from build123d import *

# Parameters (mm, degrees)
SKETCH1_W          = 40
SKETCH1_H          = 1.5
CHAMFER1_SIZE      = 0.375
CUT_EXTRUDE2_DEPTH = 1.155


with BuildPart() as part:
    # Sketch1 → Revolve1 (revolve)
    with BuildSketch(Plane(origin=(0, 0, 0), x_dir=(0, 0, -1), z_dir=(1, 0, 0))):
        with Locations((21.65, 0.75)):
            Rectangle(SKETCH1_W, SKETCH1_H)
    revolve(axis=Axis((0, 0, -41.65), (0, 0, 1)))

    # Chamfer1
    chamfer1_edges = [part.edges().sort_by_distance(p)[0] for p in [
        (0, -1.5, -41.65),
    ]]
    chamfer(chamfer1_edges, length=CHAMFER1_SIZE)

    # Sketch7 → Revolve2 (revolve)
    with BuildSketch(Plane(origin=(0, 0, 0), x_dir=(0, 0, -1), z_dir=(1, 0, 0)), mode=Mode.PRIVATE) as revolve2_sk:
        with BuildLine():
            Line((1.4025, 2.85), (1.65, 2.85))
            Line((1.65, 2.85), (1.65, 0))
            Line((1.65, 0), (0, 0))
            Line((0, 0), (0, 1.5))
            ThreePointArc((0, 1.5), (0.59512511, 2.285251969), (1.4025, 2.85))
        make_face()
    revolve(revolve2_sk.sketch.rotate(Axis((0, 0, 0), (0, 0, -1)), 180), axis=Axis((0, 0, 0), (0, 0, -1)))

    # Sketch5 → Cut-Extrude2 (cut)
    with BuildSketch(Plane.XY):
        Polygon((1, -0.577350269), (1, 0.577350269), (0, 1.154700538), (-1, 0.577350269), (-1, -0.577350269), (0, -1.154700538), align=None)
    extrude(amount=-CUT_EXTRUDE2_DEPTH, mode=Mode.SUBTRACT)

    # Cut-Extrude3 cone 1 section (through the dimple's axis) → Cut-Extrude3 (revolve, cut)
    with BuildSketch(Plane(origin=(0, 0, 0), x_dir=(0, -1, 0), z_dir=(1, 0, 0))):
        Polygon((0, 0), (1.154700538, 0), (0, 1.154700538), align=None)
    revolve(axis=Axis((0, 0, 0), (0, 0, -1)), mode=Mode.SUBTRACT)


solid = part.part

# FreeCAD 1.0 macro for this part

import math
import FreeCAD as App
import Part
import Sketcher
Q = App.Units.Quantity


def edges_at(feature, points):
    """Names of the edges that pass closest to the given points."""
    edges = feature.Shape.Edges
    near = lambda p: min(range(len(edges)), key=lambda i: edges[i].distToShape(Part.Vertex(*p))[0])
    return sorted({f"Edge{near(p) + 1}" for p in points})

doc = App.newDocument("Part")
body = doc.addObject("PartDesign::Body", "Body")

sketch1 = doc.addObject("Sketcher::SketchObject", "Sketch")
body.addObject(sketch1)
sketch1.AttachmentSupport = (doc.YZ_Plane, [""])
sketch1.MapMode = "FlatFace"
sketch1.addGeometry([
    Part.LineSegment(App.Vector(1.5, -1.65, 0), App.Vector(0, -1.65, 0)),
    Part.LineSegment(App.Vector(0, -1.65, 0), App.Vector(0, -41.65, 0)),
    Part.LineSegment(App.Vector(0, -41.65, 0), App.Vector(1.5, -41.65, 0)),
    Part.LineSegment(App.Vector(1.5, -41.65, 0), App.Vector(1.5, -1.65, 0)),
], False)
sketch1.addConstraint([
    Sketcher.Constraint("Coincident", 0, 2, 1, 1),
    Sketcher.Constraint("Coincident", 1, 2, 2, 1),
    Sketcher.Constraint("Coincident", 2, 2, 3, 1),
    Sketcher.Constraint("Coincident", 3, 2, 0, 1),
    Sketcher.Constraint("Horizontal", 0),
    Sketcher.Constraint("Vertical", 1),
    Sketcher.Constraint("Horizontal", 2),
    Sketcher.Constraint("Vertical", 3),
    Sketcher.Constraint("PointOnObject", 0, 2, -2),
    Sketcher.Constraint("DistanceY", 1, 2, 1, 1, Q("40 mm")),
    Sketcher.Constraint("DistanceX", 0, 2, 0, 1, Q("1.5 mm")),
    Sketcher.Constraint("DistanceY", 0, 2, -1, 1, Q("1.65 mm")),
])
revolution = doc.addObject("PartDesign::Revolution", "Revolution")
body.addObject(revolution)
revolution.Profile = sketch1
revolution.ReferenceAxis = (sketch1, ["V_Axis"])
revolution.Angle = 360
doc.recompute()

chamfer = doc.addObject("PartDesign::Chamfer", "Chamfer")
body.addObject(chamfer)
chamfer.Base = (revolution, edges_at(revolution, [(0, -1.5, -41.65)]))
chamfer.Size = 0.375

sketch2 = doc.addObject("Sketcher::SketchObject", "Sketch001")
body.addObject(sketch2)
sketch2.AttachmentSupport = (doc.YZ_Plane, [""])
sketch2.MapMode = "FlatFace"
sketch2.addGeometry([
    Part.LineSegment(App.Vector(2.85, -1.65, 0), App.Vector(2.85, -1.4025, 0)),
    Part.ArcOfCircle(Part.Circle(App.Vector(0, -2.794833, 0), App.Vector(0, 0, 1), 3.171922), math.radians(26.03726), math.radians(61.777335)),
    Part.LineSegment(App.Vector(1.5, 0, 0), App.Vector(0, 0, 0)),
    Part.LineSegment(App.Vector(0, 0, 0), App.Vector(0, -1.65, 0)),
    Part.LineSegment(App.Vector(0, -1.65, 0), App.Vector(2.85, -1.65, 0)),
], False)
sketch2.addConstraint([
    Sketcher.Constraint("Coincident", 0, 2, 1, 1),
    Sketcher.Constraint("Coincident", 1, 2, 2, 1),
    Sketcher.Constraint("Coincident", 2, 2, 3, 1),
    Sketcher.Constraint("Coincident", 3, 2, 4, 1),
    Sketcher.Constraint("Coincident", 4, 2, 0, 1),
    Sketcher.Constraint("Vertical", 0),
    Sketcher.Constraint("Horizontal", 2),
    Sketcher.Constraint("Vertical", 3),
    Sketcher.Constraint("Horizontal", 4),
    Sketcher.Constraint("Coincident", 2, 2, -1, 1),
    Sketcher.Constraint("PointOnObject", 1, 3, -2),
    Sketcher.Constraint("DistanceX", 2, 2, 2, 1, Q("1.5 mm")),
    Sketcher.Constraint("DistanceX", 4, 1, 4, 2, Q("2.85 mm")),
    Sketcher.Constraint("DistanceY", 3, 2, 3, 1, Q("1.65 mm")),
    Sketcher.Constraint("DistanceY", 0, 1, 0, 2, Q("0.2475 mm")),
])
revolution2 = doc.addObject("PartDesign::Revolution", "Revolution001")
body.addObject(revolution2)
revolution2.Profile = sketch2
revolution2.ReferenceAxis = (sketch2, ["V_Axis"])
revolution2.Angle = 360

sketch3 = doc.addObject("Sketcher::SketchObject", "Sketch002")
body.addObject(sketch3)
sketch3.AttachmentSupport = (doc.XY_Plane, [""])
sketch3.MapMode = "FlatFace"
sketch3.addGeometry([
    Part.LineSegment(App.Vector(1, -0.57735, 0), App.Vector(1, 0.57735, 0)),
    Part.LineSegment(App.Vector(1, 0.57735, 0), App.Vector(0, 1.154701, 0)),
    Part.LineSegment(App.Vector(0, 1.154701, 0), App.Vector(-1, 0.57735, 0)),
    Part.LineSegment(App.Vector(-1, 0.57735, 0), App.Vector(-1, -0.57735, 0)),
    Part.LineSegment(App.Vector(-1, -0.57735, 0), App.Vector(0, -1.154701, 0)),
    Part.LineSegment(App.Vector(0, -1.154701, 0), App.Vector(1, -0.57735, 0)),
], False)
sketch3.addConstraint([
    Sketcher.Constraint("Coincident", 0, 2, 1, 1),
    Sketcher.Constraint("Coincident", 1, 2, 2, 1),
    Sketcher.Constraint("Coincident", 2, 2, 3, 1),
    Sketcher.Constraint("Coincident", 3, 2, 4, 1),
    Sketcher.Constraint("Coincident", 4, 2, 5, 1),
    Sketcher.Constraint("Coincident", 5, 2, 0, 1),
    Sketcher.Constraint("Vertical", 0),
    Sketcher.Constraint("Vertical", 3),
    Sketcher.Constraint("Symmetric", 0, 2, 3, 2, -1, 1),
    Sketcher.Constraint("Symmetric", 1, 2, 4, 2, -1, 1),
    Sketcher.Constraint("PointOnObject", 1, 2, -2),
    Sketcher.Constraint("Parallel", 2, 5),
    Sketcher.Constraint("Horizontal", 0, 2, 2, 2),
    Sketcher.Constraint("Angle", 1, Q("150 deg")),
    Sketcher.Constraint("DistanceX", -1, 1, 0, 2, Q("1 mm")),
    Sketcher.Constraint("DistanceY", 0, 1, 0, 2, Q("1.154701 mm")),
])
pocket1 = doc.addObject("PartDesign::Pocket", "Pocket")
body.addObject(pocket1)
pocket1.Profile = sketch3
pocket1.Length = 1.155

sketch4 = doc.addObject("Sketcher::SketchObject", "Sketch003")
body.addObject(sketch4)
sketch4.AttachmentSupport = (doc.YZ_Plane, [""])
sketch4.MapMode = "FlatFace"
sketch4.addGeometry([
    Part.LineSegment(App.Vector(0, 0, 0), App.Vector(-1.154701, 0, 0)),
    Part.LineSegment(App.Vector(-1.154701, 0, 0), App.Vector(0, -1.154701, 0)),
    Part.LineSegment(App.Vector(0, -1.154701, 0), App.Vector(0, 0, 0)),
], False)
sketch4.addConstraint([
    Sketcher.Constraint("Coincident", 0, 2, 1, 1),
    Sketcher.Constraint("Coincident", 1, 2, 2, 1),
    Sketcher.Constraint("Coincident", 2, 2, 0, 1),
    Sketcher.Constraint("Horizontal", 0),
    Sketcher.Constraint("Vertical", 2),
    Sketcher.Constraint("Coincident", 2, 2, -1, 1),
    Sketcher.Constraint("Equal", 0, 2),
    Sketcher.Constraint("DistanceX", 0, 2, 0, 1, Q("1.154701 mm")),
])
groove = doc.addObject("PartDesign::Groove", "Groove")
body.addObject(groove)
groove.Profile = sketch4
groove.ReferenceAxis = (sketch4, ["V_Axis"])
groove.Angle = 360

doc.recompute()
